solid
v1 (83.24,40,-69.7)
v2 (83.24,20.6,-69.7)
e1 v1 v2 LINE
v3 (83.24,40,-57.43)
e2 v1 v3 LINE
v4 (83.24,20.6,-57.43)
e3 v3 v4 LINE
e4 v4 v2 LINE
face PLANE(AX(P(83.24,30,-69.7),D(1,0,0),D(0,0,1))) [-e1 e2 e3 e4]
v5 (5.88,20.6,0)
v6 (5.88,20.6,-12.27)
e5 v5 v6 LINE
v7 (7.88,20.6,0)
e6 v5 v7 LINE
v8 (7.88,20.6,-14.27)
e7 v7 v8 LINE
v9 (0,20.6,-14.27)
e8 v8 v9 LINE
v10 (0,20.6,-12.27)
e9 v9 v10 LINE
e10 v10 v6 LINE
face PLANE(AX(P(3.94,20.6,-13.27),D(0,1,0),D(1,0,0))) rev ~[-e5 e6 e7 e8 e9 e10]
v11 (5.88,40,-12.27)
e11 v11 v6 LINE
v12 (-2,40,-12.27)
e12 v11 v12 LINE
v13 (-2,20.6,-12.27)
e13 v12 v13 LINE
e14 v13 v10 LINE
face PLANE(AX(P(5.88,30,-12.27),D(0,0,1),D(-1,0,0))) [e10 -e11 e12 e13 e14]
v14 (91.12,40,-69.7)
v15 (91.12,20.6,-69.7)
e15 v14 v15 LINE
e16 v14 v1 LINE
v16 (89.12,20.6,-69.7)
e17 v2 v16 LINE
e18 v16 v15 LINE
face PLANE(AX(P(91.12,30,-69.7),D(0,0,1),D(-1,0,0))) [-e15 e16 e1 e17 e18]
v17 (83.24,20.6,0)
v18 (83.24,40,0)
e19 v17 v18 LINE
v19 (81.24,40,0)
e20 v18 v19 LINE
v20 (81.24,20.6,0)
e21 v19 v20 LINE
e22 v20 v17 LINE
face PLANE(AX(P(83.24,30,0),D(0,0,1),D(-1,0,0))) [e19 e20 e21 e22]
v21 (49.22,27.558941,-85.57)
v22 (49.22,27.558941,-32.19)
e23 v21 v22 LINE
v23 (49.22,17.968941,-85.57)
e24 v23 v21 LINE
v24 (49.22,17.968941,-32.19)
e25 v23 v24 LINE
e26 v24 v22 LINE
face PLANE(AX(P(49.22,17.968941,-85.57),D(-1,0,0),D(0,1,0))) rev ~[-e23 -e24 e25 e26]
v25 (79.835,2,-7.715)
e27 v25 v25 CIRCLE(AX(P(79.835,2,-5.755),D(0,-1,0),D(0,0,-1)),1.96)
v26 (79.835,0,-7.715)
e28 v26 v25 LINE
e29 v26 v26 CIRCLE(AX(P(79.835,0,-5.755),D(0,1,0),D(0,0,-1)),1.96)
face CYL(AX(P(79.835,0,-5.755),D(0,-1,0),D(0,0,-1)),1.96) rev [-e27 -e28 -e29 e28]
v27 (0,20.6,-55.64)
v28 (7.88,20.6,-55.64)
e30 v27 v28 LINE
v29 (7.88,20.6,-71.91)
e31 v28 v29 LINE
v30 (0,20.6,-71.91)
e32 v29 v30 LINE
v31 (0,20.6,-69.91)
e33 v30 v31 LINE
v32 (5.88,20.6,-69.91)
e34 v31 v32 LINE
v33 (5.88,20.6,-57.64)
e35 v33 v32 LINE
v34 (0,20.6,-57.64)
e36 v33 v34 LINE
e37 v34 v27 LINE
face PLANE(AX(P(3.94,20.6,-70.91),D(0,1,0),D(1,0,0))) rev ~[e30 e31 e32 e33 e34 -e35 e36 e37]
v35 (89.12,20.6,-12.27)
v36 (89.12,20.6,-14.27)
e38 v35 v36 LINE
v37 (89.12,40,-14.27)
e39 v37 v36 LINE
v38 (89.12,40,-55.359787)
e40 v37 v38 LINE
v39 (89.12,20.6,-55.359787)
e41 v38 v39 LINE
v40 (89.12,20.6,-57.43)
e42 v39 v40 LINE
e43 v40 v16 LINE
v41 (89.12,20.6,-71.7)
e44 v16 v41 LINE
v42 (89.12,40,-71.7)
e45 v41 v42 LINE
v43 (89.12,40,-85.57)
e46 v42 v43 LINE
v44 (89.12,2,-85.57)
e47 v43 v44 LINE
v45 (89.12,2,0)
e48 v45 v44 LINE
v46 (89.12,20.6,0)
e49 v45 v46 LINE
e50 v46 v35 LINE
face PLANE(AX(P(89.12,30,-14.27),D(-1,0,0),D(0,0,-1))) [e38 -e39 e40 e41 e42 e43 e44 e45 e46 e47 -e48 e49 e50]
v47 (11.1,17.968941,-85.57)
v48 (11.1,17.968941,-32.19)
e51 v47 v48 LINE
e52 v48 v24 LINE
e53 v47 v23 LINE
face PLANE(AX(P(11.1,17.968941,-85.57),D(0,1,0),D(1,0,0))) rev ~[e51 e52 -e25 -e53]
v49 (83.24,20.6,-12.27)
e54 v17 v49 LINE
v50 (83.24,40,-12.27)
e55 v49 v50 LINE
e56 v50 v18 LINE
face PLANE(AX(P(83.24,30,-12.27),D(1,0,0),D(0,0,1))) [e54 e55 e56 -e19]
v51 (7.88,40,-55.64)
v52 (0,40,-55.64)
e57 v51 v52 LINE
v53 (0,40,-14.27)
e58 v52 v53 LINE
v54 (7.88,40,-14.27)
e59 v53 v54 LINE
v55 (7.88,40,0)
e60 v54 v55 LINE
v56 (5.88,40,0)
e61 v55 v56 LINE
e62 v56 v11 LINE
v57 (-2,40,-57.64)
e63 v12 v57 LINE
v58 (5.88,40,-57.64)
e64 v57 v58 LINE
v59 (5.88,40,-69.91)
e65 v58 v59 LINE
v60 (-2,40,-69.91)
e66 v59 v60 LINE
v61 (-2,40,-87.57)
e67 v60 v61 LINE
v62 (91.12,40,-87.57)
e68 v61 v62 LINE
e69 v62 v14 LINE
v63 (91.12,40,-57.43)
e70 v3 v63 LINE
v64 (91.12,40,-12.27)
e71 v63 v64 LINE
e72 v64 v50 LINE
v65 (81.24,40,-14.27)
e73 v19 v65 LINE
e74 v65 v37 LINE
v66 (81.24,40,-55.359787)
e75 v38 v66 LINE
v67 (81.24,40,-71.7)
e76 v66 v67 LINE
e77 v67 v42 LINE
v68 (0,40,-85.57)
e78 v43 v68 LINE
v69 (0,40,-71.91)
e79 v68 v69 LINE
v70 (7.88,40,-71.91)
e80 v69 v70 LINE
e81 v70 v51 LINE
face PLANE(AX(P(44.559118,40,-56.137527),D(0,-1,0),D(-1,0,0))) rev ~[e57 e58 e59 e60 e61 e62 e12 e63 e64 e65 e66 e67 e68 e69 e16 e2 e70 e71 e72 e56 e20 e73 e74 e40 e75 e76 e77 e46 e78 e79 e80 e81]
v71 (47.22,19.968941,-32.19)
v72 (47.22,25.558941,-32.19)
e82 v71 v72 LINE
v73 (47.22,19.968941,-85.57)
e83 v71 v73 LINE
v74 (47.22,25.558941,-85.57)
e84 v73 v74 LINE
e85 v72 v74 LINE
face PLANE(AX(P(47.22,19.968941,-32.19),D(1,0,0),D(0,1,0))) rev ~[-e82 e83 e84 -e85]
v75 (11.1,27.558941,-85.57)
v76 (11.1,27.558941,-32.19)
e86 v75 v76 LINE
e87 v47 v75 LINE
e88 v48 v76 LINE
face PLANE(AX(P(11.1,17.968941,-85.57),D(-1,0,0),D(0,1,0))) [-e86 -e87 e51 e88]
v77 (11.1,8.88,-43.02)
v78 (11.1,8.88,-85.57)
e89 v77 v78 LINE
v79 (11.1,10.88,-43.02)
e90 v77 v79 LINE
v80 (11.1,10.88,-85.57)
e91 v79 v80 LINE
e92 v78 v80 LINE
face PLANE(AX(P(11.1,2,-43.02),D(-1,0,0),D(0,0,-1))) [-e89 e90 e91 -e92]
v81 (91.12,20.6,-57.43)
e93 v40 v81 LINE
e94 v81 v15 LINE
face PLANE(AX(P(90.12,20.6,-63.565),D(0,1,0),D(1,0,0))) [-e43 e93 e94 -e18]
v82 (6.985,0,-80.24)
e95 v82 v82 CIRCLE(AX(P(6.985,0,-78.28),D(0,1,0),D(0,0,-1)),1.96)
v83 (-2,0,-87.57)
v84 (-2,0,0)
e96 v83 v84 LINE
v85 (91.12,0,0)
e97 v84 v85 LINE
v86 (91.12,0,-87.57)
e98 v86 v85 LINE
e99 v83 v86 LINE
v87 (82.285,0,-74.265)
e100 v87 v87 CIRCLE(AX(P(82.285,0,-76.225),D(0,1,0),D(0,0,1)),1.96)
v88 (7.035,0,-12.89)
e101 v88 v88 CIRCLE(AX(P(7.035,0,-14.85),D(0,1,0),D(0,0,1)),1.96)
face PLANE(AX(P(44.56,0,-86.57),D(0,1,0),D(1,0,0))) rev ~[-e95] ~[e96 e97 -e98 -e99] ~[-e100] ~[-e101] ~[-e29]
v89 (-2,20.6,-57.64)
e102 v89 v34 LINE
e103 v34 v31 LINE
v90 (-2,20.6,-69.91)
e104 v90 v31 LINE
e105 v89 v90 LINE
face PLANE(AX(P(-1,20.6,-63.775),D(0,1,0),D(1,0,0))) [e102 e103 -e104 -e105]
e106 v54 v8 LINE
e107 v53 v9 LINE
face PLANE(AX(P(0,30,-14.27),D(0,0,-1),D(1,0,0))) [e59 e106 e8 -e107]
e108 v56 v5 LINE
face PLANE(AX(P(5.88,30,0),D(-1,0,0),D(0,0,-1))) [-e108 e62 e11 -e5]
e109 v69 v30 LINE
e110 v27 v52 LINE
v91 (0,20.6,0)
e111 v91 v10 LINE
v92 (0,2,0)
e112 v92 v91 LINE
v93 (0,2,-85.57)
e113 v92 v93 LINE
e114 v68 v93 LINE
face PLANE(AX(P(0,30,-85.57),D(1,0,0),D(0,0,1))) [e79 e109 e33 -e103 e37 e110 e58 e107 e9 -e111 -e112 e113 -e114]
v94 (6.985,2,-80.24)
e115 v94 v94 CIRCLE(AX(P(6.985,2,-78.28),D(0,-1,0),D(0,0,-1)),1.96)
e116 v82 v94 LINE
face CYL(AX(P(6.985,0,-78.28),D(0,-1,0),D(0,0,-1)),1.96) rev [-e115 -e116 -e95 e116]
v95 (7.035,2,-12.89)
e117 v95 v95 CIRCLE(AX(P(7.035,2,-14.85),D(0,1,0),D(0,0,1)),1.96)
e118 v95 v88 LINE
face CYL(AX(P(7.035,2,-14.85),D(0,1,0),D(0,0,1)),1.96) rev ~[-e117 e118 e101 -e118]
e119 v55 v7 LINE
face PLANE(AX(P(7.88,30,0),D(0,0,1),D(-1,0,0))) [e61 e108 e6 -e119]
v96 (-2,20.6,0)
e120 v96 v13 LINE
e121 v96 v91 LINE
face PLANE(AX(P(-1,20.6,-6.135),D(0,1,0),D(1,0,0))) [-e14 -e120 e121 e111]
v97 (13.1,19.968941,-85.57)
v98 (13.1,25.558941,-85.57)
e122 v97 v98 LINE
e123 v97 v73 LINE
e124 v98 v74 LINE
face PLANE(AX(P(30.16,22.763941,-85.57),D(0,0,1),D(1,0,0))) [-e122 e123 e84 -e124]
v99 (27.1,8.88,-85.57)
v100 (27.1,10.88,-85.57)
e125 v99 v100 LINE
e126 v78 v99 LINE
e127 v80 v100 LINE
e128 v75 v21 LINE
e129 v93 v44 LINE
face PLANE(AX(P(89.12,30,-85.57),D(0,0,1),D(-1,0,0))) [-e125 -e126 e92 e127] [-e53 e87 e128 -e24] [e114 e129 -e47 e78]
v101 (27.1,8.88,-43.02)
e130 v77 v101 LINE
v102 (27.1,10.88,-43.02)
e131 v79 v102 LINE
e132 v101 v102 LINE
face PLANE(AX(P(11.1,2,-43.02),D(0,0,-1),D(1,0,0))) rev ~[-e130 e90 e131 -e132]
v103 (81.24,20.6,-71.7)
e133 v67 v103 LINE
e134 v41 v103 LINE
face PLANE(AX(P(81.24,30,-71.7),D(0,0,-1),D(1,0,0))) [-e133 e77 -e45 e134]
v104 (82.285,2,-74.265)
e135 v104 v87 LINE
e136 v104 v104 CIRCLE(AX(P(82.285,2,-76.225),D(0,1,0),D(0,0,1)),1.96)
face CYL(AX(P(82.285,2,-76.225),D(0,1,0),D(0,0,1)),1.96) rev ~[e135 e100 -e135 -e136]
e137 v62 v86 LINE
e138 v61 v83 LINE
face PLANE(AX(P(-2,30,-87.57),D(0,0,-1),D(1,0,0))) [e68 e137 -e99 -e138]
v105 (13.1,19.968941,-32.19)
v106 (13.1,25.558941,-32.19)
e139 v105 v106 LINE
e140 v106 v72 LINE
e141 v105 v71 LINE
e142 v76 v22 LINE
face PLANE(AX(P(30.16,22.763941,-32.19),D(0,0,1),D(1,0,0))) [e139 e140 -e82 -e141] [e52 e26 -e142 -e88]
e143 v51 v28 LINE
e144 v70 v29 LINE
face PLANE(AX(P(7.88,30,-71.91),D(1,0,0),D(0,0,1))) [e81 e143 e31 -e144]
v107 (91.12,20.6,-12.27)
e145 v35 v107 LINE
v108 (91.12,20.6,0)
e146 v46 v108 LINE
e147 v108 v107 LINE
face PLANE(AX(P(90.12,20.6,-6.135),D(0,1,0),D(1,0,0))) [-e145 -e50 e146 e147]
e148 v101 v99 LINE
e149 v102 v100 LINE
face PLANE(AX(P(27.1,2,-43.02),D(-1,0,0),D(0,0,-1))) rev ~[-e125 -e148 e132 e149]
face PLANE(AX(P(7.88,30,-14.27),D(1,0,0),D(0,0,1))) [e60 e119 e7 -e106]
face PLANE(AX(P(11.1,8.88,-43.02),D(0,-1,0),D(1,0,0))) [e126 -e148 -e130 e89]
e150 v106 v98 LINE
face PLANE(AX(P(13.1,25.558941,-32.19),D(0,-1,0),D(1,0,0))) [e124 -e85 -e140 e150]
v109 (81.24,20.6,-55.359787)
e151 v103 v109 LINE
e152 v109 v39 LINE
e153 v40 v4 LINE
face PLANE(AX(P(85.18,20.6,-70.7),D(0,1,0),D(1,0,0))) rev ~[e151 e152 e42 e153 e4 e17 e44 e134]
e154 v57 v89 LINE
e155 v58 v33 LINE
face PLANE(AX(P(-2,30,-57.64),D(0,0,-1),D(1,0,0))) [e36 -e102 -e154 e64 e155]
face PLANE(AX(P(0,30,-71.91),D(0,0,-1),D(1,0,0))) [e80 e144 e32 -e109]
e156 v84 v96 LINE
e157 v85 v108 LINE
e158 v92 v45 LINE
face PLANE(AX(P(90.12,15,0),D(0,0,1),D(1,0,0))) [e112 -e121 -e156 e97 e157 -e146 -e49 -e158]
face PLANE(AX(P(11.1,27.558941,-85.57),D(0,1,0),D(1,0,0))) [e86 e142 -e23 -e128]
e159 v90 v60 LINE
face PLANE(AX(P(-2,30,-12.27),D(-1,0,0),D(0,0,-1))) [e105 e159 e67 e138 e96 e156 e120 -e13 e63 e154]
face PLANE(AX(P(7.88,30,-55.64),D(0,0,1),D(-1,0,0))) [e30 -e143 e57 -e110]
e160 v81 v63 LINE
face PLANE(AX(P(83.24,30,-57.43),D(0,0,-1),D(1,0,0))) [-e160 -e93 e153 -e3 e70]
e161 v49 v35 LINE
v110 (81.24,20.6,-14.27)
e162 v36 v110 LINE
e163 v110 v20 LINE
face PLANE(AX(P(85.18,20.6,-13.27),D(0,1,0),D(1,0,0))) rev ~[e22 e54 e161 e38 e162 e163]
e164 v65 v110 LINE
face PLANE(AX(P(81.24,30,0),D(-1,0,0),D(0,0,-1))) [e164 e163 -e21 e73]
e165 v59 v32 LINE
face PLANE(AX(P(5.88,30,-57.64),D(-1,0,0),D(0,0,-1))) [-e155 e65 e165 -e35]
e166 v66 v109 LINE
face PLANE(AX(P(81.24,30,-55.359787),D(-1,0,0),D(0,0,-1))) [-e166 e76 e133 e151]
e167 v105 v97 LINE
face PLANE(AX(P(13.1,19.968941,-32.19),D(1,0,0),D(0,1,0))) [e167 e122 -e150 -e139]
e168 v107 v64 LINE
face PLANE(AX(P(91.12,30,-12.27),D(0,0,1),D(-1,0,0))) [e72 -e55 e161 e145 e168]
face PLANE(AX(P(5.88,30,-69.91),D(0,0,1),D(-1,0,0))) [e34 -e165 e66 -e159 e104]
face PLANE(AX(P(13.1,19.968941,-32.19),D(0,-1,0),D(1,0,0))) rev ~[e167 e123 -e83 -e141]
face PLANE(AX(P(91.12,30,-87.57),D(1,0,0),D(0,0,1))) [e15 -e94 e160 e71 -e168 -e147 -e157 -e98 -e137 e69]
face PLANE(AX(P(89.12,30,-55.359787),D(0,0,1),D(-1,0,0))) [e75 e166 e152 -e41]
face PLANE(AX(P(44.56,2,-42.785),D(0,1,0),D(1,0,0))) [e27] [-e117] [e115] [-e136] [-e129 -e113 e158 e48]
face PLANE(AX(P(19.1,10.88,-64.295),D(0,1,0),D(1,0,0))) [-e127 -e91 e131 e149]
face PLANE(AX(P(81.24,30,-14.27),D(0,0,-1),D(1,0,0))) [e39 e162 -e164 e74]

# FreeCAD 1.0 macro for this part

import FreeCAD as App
import Part
import Sketcher

V = App.Vector
Q = App.Units.Quantity


def add_polygon(sketch, points):
    """Adds a closed chain of lines whose ends are joined by coincident constraints."""
    first, n = sketch.GeometryCount, len(points)
    for a, b in zip(points, points[1:] + points[:1]):
        sketch.addGeometry(Part.LineSegment(App.Vector(*a, 0), App.Vector(*b, 0)), False)
    for i in range(n):
        sketch.addConstraint(Sketcher.Constraint("Coincident", first + i, 2, first + (i + 1) % n, 1))

doc = App.newDocument("Part")
body = doc.addObject("PartDesign::Body", "Body")

# Sketch on XZ plane
sketch1 = doc.addObject("Sketcher::SketchObject", "Sketch")
body.addObject(sketch1)
sketch1.AttachmentSupport = (doc.XZ_Plane, [""])
sketch1.MapMode = "FlatFace"
add_polygon(sketch1, [(0, -85.57), (0, 0), (89.12, 0), (89.12, -85.57)])  # lines 0-3
sketch1.addConstraint(Sketcher.Constraint("Vertical", 0))
sketch1.addConstraint(Sketcher.Constraint("Horizontal", 1))
sketch1.addConstraint(Sketcher.Constraint("Vertical", 2))
sketch1.addConstraint(Sketcher.Constraint("Horizontal", 3))
sketch1.addConstraint(Sketcher.Constraint("Coincident", 0, 2, -1, 1))
sketch1.addConstraint(Sketcher.Constraint("DistanceX", 1, 1, 1, 2, Q("89.12 mm")))
sketch1.addConstraint(Sketcher.Constraint("DistanceY", 0, 1, 0, 2, Q("85.57 mm")))
pad1 = doc.addObject("PartDesign::Pad", "Pad")
body.addObject(pad1)
pad1.Profile = sketch1
pad1.Length = 2
pad1.Reversed = True

# Sketch on XY plane
sketch2 = doc.addObject("Sketcher::SketchObject", "Sketch001")
body.addObject(sketch2)
sketch2.AttachmentSupport = (doc.XY_Plane, [""])
sketch2.MapMode = "FlatFace"
add_polygon(sketch2, [(-2, 30), (-2, 0), (0, 0), (0, 30)])  # lines 0-3
sketch2.addConstraint(Sketcher.Constraint("Vertical", 0))
sketch2.addConstraint(Sketcher.Constraint("Horizontal", 1))
sketch2.addConstraint(Sketcher.Constraint("Vertical", 2))
sketch2.addConstraint(Sketcher.Constraint("Horizontal", 3))
sketch2.addConstraint(Sketcher.Constraint("Coincident", 1, 2, -1, 1))
sketch2.addConstraint(Sketcher.Constraint("DistanceX", 1, 1, 1, 2, Q("2 mm")))
sketch2.addConstraint(Sketcher.Constraint("DistanceY", 0, 2, 0, 1, Q("30 mm")))
pad2 = doc.addObject("PartDesign::Pad", "Pad001")
body.addObject(pad2)
pad2.Profile = sketch2
pad2.Length = 85.57
pad2.Reversed = True

# Sketch on XY plane
sketch3 = doc.addObject("Sketcher::SketchObject", "Sketch002")
body.addObject(sketch3)
sketch3.AttachmentSupport = (doc.XY_Plane, [""])
sketch3.MapMode = "FlatFace"
add_polygon(sketch3, [(89.12, 30), (89.12, 0), (91.12, 0), (91.12, 30)])  # lines 0-3
sketch3.addConstraint(Sketcher.Constraint("Vertical", 0))
sketch3.addConstraint(Sketcher.Constraint("Horizontal", 1))
sketch3.addConstraint(Sketcher.Constraint("Vertical", 2))
sketch3.addConstraint(Sketcher.Constraint("Horizontal", 3))
sketch3.addConstraint(Sketcher.Constraint("PointOnObject", 0, 2, -1))
sketch3.addConstraint(Sketcher.Constraint("DistanceX", 1, 1, 1, 2, Q("2 mm")))
sketch3.addConstraint(Sketcher.Constraint("DistanceY", 0, 2, 0, 1, Q("30 mm")))
sketch3.addConstraint(Sketcher.Constraint("DistanceX", -1, 1, 0, 2, Q("89.12 mm")))
pad3 = doc.addObject("PartDesign::Pad", "Pad002")
body.addObject(pad3)
pad3.Profile = sketch3
pad3.Length = 85.57
pad3.Reversed = True

# Sketch on XZ plane
sketch4 = doc.addObject("Sketcher::SketchObject", "Sketch003")
body.addObject(sketch4)
sketch4.AttachmentSupport = (doc.XZ_Plane, [""])
sketch4.MapMode = "FlatFace"
add_polygon(sketch4, [(-2, -87.57), (-2, -85.57), (91.12, -85.57), (91.12, -87.57)])  # lines 0-3
sketch4.addConstraint(Sketcher.Constraint("Vertical", 0))
sketch4.addConstraint(Sketcher.Constraint("Horizontal", 1))
sketch4.addConstraint(Sketcher.Constraint("Vertical", 2))
sketch4.addConstraint(Sketcher.Constraint("Horizontal", 3))
sketch4.addConstraint(Sketcher.Constraint("DistanceY", 0, 1, 0, 2, Q("2 mm")))
sketch4.addConstraint(Sketcher.Constraint("DistanceX", 0, 2, -1, 1, Q("2 mm")))
sketch4.addConstraint(Sketcher.Constraint("DistanceX", 1, 1, 1, 2, Q("93.12 mm")))
sketch4.addConstraint(Sketcher.Constraint("DistanceY", 0, 2, -1, 1, Q("85.57 mm")))
pad4 = doc.addObject("PartDesign::Pad", "Pad003")
body.addObject(pad4)
pad4.Profile = sketch4
pad4.Length = 30
pad4.Reversed = True

# Sketch on XZ plane
sketch5 = doc.addObject("Sketcher::SketchObject", "Sketch004")
body.addObject(sketch5)
sketch5.AttachmentSupport = (doc.XZ_Plane, [""])
sketch5.MapMode = "FlatFace"
sketch5.addGeometry(Part.Circle(V(79.835, -5.755, 0), V(0, 0, 1), 1.96), False)
sketch5.addConstraint(Sketcher.Constraint("Diameter", 0, Q("3.92 mm")))
sketch5.addConstraint(Sketcher.Constraint("DistanceX", -1, 1, 0, 3, Q("79.835 mm")))
sketch5.addConstraint(Sketcher.Constraint("DistanceY", 0, 3, -1, 1, Q("5.755 mm")))
pocket1 = doc.addObject("PartDesign::Pocket", "Pocket")
body.addObject(pocket1)
pocket1.Profile = sketch5
pocket1.Length = 30

# Sketch on XZ plane
sketch6 = doc.addObject("Sketcher::SketchObject", "Sketch005")
body.addObject(sketch6)
sketch6.AttachmentSupport = (doc.XZ_Plane, [""])
sketch6.MapMode = "FlatFace"
sketch6.AttachmentOffset = App.Placement(V(0, 0, -2), App.Rotation())
sketch6.addGeometry(Part.Circle(V(82.285, -76.225, 0), V(0, 0, 1), 1.96), False)
sketch6.addConstraint(Sketcher.Constraint("Diameter", 0, Q("3.92 mm")))
sketch6.addConstraint(Sketcher.Constraint("DistanceX", -1, 1, 0, 3, Q("82.285 mm")))
sketch6.addConstraint(Sketcher.Constraint("DistanceY", 0, 3, -1, 1, Q("76.225 mm")))
pocket2 = doc.addObject("PartDesign::Pocket", "Pocket001")
body.addObject(pocket2)
pocket2.Profile = sketch6
pocket2.Length = 30
pocket2.Reversed = True

# Sketch on XZ plane
sketch7 = doc.addObject("Sketcher::SketchObject", "Sketch006")
body.addObject(sketch7)
sketch7.AttachmentSupport = (doc.XZ_Plane, [""])
sketch7.MapMode = "FlatFace"
sketch7.addGeometry(Part.Circle(V(6.985, -78.28, 0), V(0, 0, 1), 1.96), False)
sketch7.addConstraint(Sketcher.Constraint("Diameter", 0, Q("3.92 mm")))
sketch7.addConstraint(Sketcher.Constraint("DistanceY", 0, 3, -1, 1, Q("78.28 mm")))
sketch7.addConstraint(Sketcher.Constraint("DistanceX", -1, 1, 0, 3, Q("6.985 mm")))
pocket3 = doc.addObject("PartDesign::Pocket", "Pocket002")
body.addObject(pocket3)
pocket3.Profile = sketch7
pocket3.Length = 30

# Sketch on XZ plane
sketch8 = doc.addObject("Sketcher::SketchObject", "Sketch007")
body.addObject(sketch8)
sketch8.AttachmentSupport = (doc.XZ_Plane, [""])
sketch8.MapMode = "FlatFace"
sketch8.AttachmentOffset = App.Placement(V(0, 0, -2), App.Rotation())
sketch8.addGeometry(Part.Circle(V(7.035, -14.85, 0), V(0, 0, 1), 1.96), False)
sketch8.addConstraint(Sketcher.Constraint("Diameter", 0, Q("3.92 mm")))
sketch8.addConstraint(Sketcher.Constraint("DistanceY", 0, 3, -1, 1, Q("14.85 mm")))
sketch8.addConstraint(Sketcher.Constraint("DistanceX", -1, 1, 0, 3, Q("7.035 mm")))
pocket4 = doc.addObject("PartDesign::Pocket", "Pocket003")
body.addObject(pocket4)
pocket4.Profile = sketch8
pocket4.Length = 30
pocket4.Reversed = True

# Sketch on XZ plane
sketch9 = doc.addObject("Sketcher::SketchObject", "Sketch008")
body.addObject(sketch9)
sketch9.AttachmentSupport = (doc.XZ_Plane, [""])
sketch9.MapMode = "FlatFace"
sketch9.AttachmentOffset = App.Placement(V(0, 0, -30), App.Rotation())
add_polygon(sketch9, [(89.12, -12.27), (89.12, -14.27), (81.24, -14.27), (81.24, 0), (83.24, 0), (83.24, -12.27)])  # lines 0-5
sketch9.addConstraint(Sketcher.Constraint("Vertical", 0))
sketch9.addConstraint(Sketcher.Constraint("Horizontal", 1))
sketch9.addConstraint(Sketcher.Constraint("Vertical", 2))
sketch9.addConstraint(Sketcher.Constraint("Horizontal", 3))
sketch9.addConstraint(Sketcher.Constraint("Vertical", 4))
sketch9.addConstraint(Sketcher.Constraint("Horizontal", 5))
sketch9.addConstraint(Sketcher.Constraint("PointOnObject", 2, 2, -1))
sketch9.addConstraint(Sketcher.Constraint("Equal", 3, 0))
sketch9.addConstraint(Sketcher.Constraint("DistanceX", 3, 1, 3, 2, Q("2 mm")))
sketch9.addConstraint(Sketcher.Constraint("DistanceX", 1, 2, 1, 1, Q("7.88 mm")))
sketch9.addConstraint(Sketcher.Constraint("DistanceY", 2, 1, 2, 2, Q("14.27 mm")))
sketch9.addConstraint(Sketcher.Constraint("DistanceX", -1, 1, 0, 2, Q("89.12 mm")))
pad5 = doc.addObject("PartDesign::Pad", "Pad004")
body.addObject(pad5)
pad5.Profile = sketch9
pad5.Length = 9.4

# Sketch on XZ plane
sketch10 = doc.addObject("Sketcher::SketchObject", "Sketch009")
body.addObject(sketch10)
sketch10.AttachmentSupport = (doc.XZ_Plane, [""])
sketch10.MapMode = "FlatFace"
sketch10.AttachmentOffset = App.Placement(V(0, 0, -30), App.Rotation())
add_polygon(sketch10, [(89.12, -12.27), (89.12, 0), (91.12, 0), (91.12, -12.27)])  # lines 0-3
sketch10.addConstraint(Sketcher.Constraint("Vertical", 0))
sketch10.addConstraint(Sketcher.Constraint("Horizontal", 1))
sketch10.addConstraint(Sketcher.Constraint("Vertical", 2))
sketch10.addConstraint(Sketcher.Constraint("Horizontal", 3))
sketch10.addConstraint(Sketcher.Constraint("PointOnObject", 0, 2, -1))
sketch10.addConstraint(Sketcher.Constraint("DistanceX", 1, 1, 1, 2, Q("2 mm")))
sketch10.addConstraint(Sketcher.Constraint("DistanceY", 0, 1, 0, 2, Q("12.27 mm")))
sketch10.addConstraint(Sketcher.Constraint("DistanceX", -1, 1, 0, 2, Q("89.12 mm")))
pocket5 = doc.addObject("PartDesign::Pocket", "Pocket004")
body.addObject(pocket5)
pocket5.Profile = sketch10
pocket5.Length = 9.4
pocket5.Reversed = True

# Sketch on XZ plane
sketch11 = doc.addObject("Sketcher::SketchObject", "Sketch010")
body.addObject(sketch11)
sketch11.AttachmentSupport = (doc.XZ_Plane, [""])
sketch11.MapMode = "FlatFace"
sketch11.AttachmentOffset = App.Placement(V(0, 0, -30), App.Rotation())
add_polygon(sketch11, [(89.12, -69.7), (89.12, -71.7), (81.24, -71.7), (81.24, -55.359787), (89.12, -55.359787), (89.12, -57.43), (83.24, -57.43), (83.24, -69.7)])  # lines 0-7
sketch11.addConstraint(Sketcher.Constraint("Vertical", 0))
sketch11.addConstraint(Sketcher.Constraint("Horizontal", 1))
sketch11.addConstraint(Sketcher.Constraint("Vertical", 2))
sketch11.addConstraint(Sketcher.Constraint("Horizontal", 3))
sketch11.addConstraint(Sketcher.Constraint("Vertical", 4))
sketch11.addConstraint(Sketcher.Constraint("Horizontal", 5))
sketch11.addConstraint(Sketcher.Constraint("Vertical", 6))
sketch11.addConstraint(Sketcher.Constraint("Horizontal", 7))
sketch11.addConstraint(Sketcher.Constraint("Vertical", 0, 2, 3, 2))
sketch11.addConstraint(Sketcher.Constraint("DistanceY", 0, 2, 0, 1, Q("2 mm")))
sketch11.addConstraint(Sketcher.Constraint("DistanceX", 2, 2, 5, 2, Q("2 mm")))
sketch11.addConstraint(Sketcher.Constraint("DistanceX", 1, 2, 1, 1, Q("7.88 mm")))
sketch11.addConstraint(Sketcher.Constraint("DistanceY", 6, 2, 6, 1, Q("12.27 mm")))
sketch11.addConstraint(Sketcher.Constraint("DistanceY", 0, 2, -1, 1, Q("71.7 mm")))
sketch11.addConstraint(Sketcher.Constraint("DistanceX", -1, 1, 0, 2, Q("89.12 mm")))
sketch11.addConstraint(Sketcher.Constraint("DistanceY", 2, 1, 2, 2, Q("16.340213 mm")))
pad6 = doc.addObject("PartDesign::Pad", "Pad005")
body.addObject(pad6)
pad6.Profile = sketch11
pad6.Length = 9.4

# Sketch on XZ plane
sketch12 = doc.addObject("Sketcher::SketchObject", "Sketch011")
body.addObject(sketch12)
sketch12.AttachmentSupport = (doc.XZ_Plane, [""])
sketch12.MapMode = "FlatFace"
sketch12.AttachmentOffset = App.Placement(V(0, 0, -30), App.Rotation())
add_polygon(sketch12, [(89.12, -69.7), (89.12, -57.43), (91.12, -57.43), (91.12, -69.7)])  # lines 0-3
sketch12.addConstraint(Sketcher.Constraint("Vertical", 0))
sketch12.addConstraint(Sketcher.Constraint("Horizontal", 1))
sketch12.addConstraint(Sketcher.Constraint("Vertical", 2))
sketch12.addConstraint(Sketcher.Constraint("Horizontal", 3))
sketch12.addConstraint(Sketcher.Constraint("DistanceX", 1, 1, 1, 2, Q("2 mm")))
sketch12.addConstraint(Sketcher.Constraint("DistanceY", 0, 1, 0, 2, Q("12.27 mm")))
sketch12.addConstraint(Sketcher.Constraint("DistanceY", 2, 2, -1, 1, Q("69.7 mm")))
sketch12.addConstraint(Sketcher.Constraint("DistanceX", -1, 1, 0, 2, Q("89.12 mm")))
pocket6 = doc.addObject("PartDesign::Pocket", "Pocket005")
body.addObject(pocket6)
pocket6.Profile = sketch12
pocket6.Length = 9.4
pocket6.Reversed = True

# Sketch on XZ plane
sketch13 = doc.addObject("Sketcher::SketchObject", "Sketch012")
body.addObject(sketch13)
sketch13.AttachmentSupport = (doc.XZ_Plane, [""])
sketch13.MapMode = "FlatFace"
sketch13.AttachmentOffset = App.Placement(V(0, 0, -30), App.Rotation())
add_polygon(sketch13, [(0, -71.91), (0, -69.91), (5.88, -69.91), (5.88, -57.64), (0, -57.64), (0, -55.64), (7.88, -55.64), (7.88, -71.91)])  # lines 0-7
sketch13.addConstraint(Sketcher.Constraint("Vertical", 0))
sketch13.addConstraint(Sketcher.Constraint("Horizontal", 1))
sketch13.addConstraint(Sketcher.Constraint("Vertical", 2))
sketch13.addConstraint(Sketcher.Constraint("Horizontal", 3))
sketch13.addConstraint(Sketcher.Constraint("Vertical", 4))
sketch13.addConstraint(Sketcher.Constraint("Horizontal", 5))
sketch13.addConstraint(Sketcher.Constraint("Vertical", 6))
sketch13.addConstraint(Sketcher.Constraint("Horizontal", 7))
sketch13.addConstraint(Sketcher.Constraint("PointOnObject", 0, 2, -2))
sketch13.addConstraint(Sketcher.Constraint("PointOnObject", 3, 2, -2))
sketch13.addConstraint(Sketcher.Constraint("Equal", 0, 4))
sketch13.addConstraint(Sketcher.Constraint("DistanceY", 0, 1, 0, 2, Q("2 mm")))
sketch13.addConstraint(Sketcher.Constraint("DistanceX", 2, 2, 5, 2, Q("2 mm")))
sketch13.addConstraint(Sketcher.Constraint("DistanceX", 1, 1, 1, 2, Q("5.88 mm")))
sketch13.addConstraint(Sketcher.Constraint("DistanceY", 2, 1, 2, 2, Q("12.27 mm")))
sketch13.addConstraint(Sketcher.Constraint("DistanceY", 0, 2, -1, 1, Q("69.91 mm")))
pad7 = doc.addObject("PartDesign::Pad", "Pad006")
body.addObject(pad7)
pad7.Profile = sketch13
pad7.Length = 9.4

# Sketch on XZ plane
sketch14 = doc.addObject("Sketcher::SketchObject", "Sketch013")
body.addObject(sketch14)
sketch14.AttachmentSupport = (doc.XZ_Plane, [""])
sketch14.MapMode = "FlatFace"
sketch14.AttachmentOffset = App.Placement(V(0, 0, -30), App.Rotation())
add_polygon(sketch14, [(-2, -69.91), (-2, -57.64), (0, -57.64), (0, -69.91)])  # lines 0-3
sketch14.addConstraint(Sketcher.Constraint("Vertical", 0))
sketch14.addConstraint(Sketcher.Constraint("Horizontal", 1))
sketch14.addConstraint(Sketcher.Constraint("Vertical", 2))
sketch14.addConstraint(Sketcher.Constraint("Horizontal", 3))
sketch14.addConstraint(Sketcher.Constraint("PointOnObject", 1, 2, -2))
sketch14.addConstraint(Sketcher.Constraint("DistanceX", 1, 1, 1, 2, Q("2 mm")))
sketch14.addConstraint(Sketcher.Constraint("DistanceY", 0, 1, 0, 2, Q("12.27 mm")))
sketch14.addConstraint(Sketcher.Constraint("DistanceY", 0, 2, -1, 1, Q("57.64 mm")))
pocket7 = doc.addObject("PartDesign::Pocket", "Pocket006")
body.addObject(pocket7)
pocket7.Profile = sketch14
pocket7.Length = 9.4
pocket7.Reversed = True

# Sketch on XZ plane
sketch15 = doc.addObject("Sketcher::SketchObject", "Sketch014")
body.addObject(sketch15)
sketch15.AttachmentSupport = (doc.XZ_Plane, [""])
sketch15.MapMode = "FlatFace"
sketch15.AttachmentOffset = App.Placement(V(0, 0, -30), App.Rotation())
add_polygon(sketch15, [(0, -14.27), (0, -12.27), (5.88, -12.27), (5.88, 0), (7.88, 0), (7.88, -14.27)])  # lines 0-5
sketch15.addConstraint(Sketcher.Constraint("Vertical", 0))
sketch15.addConstraint(Sketcher.Constraint("Horizontal", 1))
sketch15.addConstraint(Sketcher.Constraint("Vertical", 2))
sketch15.addConstraint(Sketcher.Constraint("Horizontal", 3))
sketch15.addConstraint(Sketcher.Constraint("Vertical", 4))
sketch15.addConstraint(Sketcher.Constraint("Horizontal", 5))
sketch15.addConstraint(Sketcher.Constraint("PointOnObject", 0, 2, -2))
sketch15.addConstraint(Sketcher.Constraint("PointOnObject", 2, 2, -1))
sketch15.addConstraint(Sketcher.Constraint("Equal", 3, 0))
sketch15.addConstraint(Sketcher.Constraint("DistanceX", 3, 1, 3, 2, Q("2 mm")))
sketch15.addConstraint(Sketcher.Constraint("DistanceX", 1, 1, 1, 2, Q("5.88 mm")))
sketch15.addConstraint(Sketcher.Constraint("DistanceY", 2, 1, 2, 2, Q("12.27 mm")))
pad8 = doc.addObject("PartDesign::Pad", "Pad007")
body.addObject(pad8)
pad8.Profile = sketch15
pad8.Length = 9.4

# Sketch on XZ plane
sketch16 = doc.addObject("Sketcher::SketchObject", "Sketch015")
body.addObject(sketch16)
sketch16.AttachmentSupport = (doc.XZ_Plane, [""])
sketch16.MapMode = "FlatFace"
sketch16.AttachmentOffset = App.Placement(V(0, 0, -30), App.Rotation())
add_polygon(sketch16, [(-2, -12.27), (-2, 0), (0, 0), (0, -12.27)])  # lines 0-3
sketch16.addConstraint(Sketcher.Constraint("Vertical", 0))
sketch16.addConstraint(Sketcher.Constraint("Horizontal", 1))
sketch16.addConstraint(Sketcher.Constraint("Vertical", 2))
sketch16.addConstraint(Sketcher.Constraint("Horizontal", 3))
sketch16.addConstraint(Sketcher.Constraint("Coincident", 1, 2, -1, 1))
sketch16.addConstraint(Sketcher.Constraint("DistanceX", 1, 1, 1, 2, Q("2 mm")))
sketch16.addConstraint(Sketcher.Constraint("DistanceY", 0, 1, 0, 2, Q("12.27 mm")))
pocket8 = doc.addObject("PartDesign::Pocket", "Pocket007")
body.addObject(pocket8)
pocket8.Profile = sketch16
pocket8.Length = 9.4
pocket8.Reversed = True

# Sketch on XZ plane
sketch17 = doc.addObject("Sketcher::SketchObject", "Sketch016")
body.addObject(sketch17)
sketch17.AttachmentSupport = (doc.XZ_Plane, [""])
sketch17.MapMode = "FlatFace"
sketch17.AttachmentOffset = App.Placement(V(0, 0, -30), App.Rotation())
add_polygon(sketch17, [(81.24, 0), (83.24, 0), (83.24, -12.27), (91.12, -12.27), (91.12, -57.43), (83.24, -57.43), (83.24, -69.7), (91.12, -69.7), (91.12, -87.57), (-2, -87.57), (-2, -69.91), (5.88, -69.91), (5.88, -57.64), (-2, -57.64), (-2, -12.27), (5.88, -12.27), (5.88, 0), (7.88, 0), (7.88, -14.27), (0, -14.27), (0, -55.64), (7.88, -55.64), (7.88, -71.91), (0, -71.91), (0, -85.57), (89.12, -85.57), (89.12, -71.7), (81.24, -71.7), (81.24, -55.359787), (89.12, -55.359787), (89.12, -14.27), (81.24, -14.27)])  # lines 0-31
sketch17.addConstraint(Sketcher.Constraint("Horizontal", 0))
sketch17.addConstraint(Sketcher.Constraint("Vertical", 1))
sketch17.addConstraint(Sketcher.Constraint("Horizontal", 2))
sketch17.addConstraint(Sketcher.Constraint("Vertical", 3))
sketch17.addConstraint(Sketcher.Constraint("Horizontal", 4))
sketch17.addConstraint(Sketcher.Constraint("Vertical", 5))
sketch17.addConstraint(Sketcher.Constraint("Horizontal", 6))
sketch17.addConstraint(Sketcher.Constraint("Vertical", 7))
sketch17.addConstraint(Sketcher.Constraint("Horizontal", 8))
sketch17.addConstraint(Sketcher.Constraint("Vertical", 9))
sketch17.addConstraint(Sketcher.Constraint("Horizontal", 10))
sketch17.addConstraint(Sketcher.Constraint("Vertical", 11))
sketch17.addConstraint(Sketcher.Constraint("Horizontal", 12))
sketch17.addConstraint(Sketcher.Constraint("Vertical", 13))
sketch17.addConstraint(Sketcher.Constraint("Horizontal", 14))
sketch17.addConstraint(Sketcher.Constraint("Vertical", 15))
sketch17.addConstraint(Sketcher.Constraint("Horizontal", 16))
sketch17.addConstraint(Sketcher.Constraint("Vertical", 17))
sketch17.addConstraint(Sketcher.Constraint("Horizontal", 18))
sketch17.addConstraint(Sketcher.Constraint("Vertical", 19))
sketch17.addConstraint(Sketcher.Constraint("Horizontal", 20))
sketch17.addConstraint(Sketcher.Constraint("Vertical", 21))
sketch17.addConstraint(Sketcher.Constraint("Horizontal", 22))
sketch17.addConstraint(Sketcher.Constraint("Vertical", 23))
sketch17.addConstraint(Sketcher.Constraint("Horizontal", 24))
sketch17.addConstraint(Sketcher.Constraint("Vertical", 25))
sketch17.addConstraint(Sketcher.Constraint("Horizontal", 26))
sketch17.addConstraint(Sketcher.Constraint("Vertical", 27))
sketch17.addConstraint(Sketcher.Constraint("Horizontal", 28))
sketch17.addConstraint(Sketcher.Constraint("Vertical", 29))
sketch17.addConstraint(Sketcher.Constraint("Horizontal", 30))
sketch17.addConstraint(Sketcher.Constraint("Vertical", 31))
sketch17.addConstraint(Sketcher.Constraint("PointOnObject", 0, 2, -1))
sketch17.addConstraint(Sketcher.Constraint("PointOnObject", 15, 2, -1))
sketch17.addConstraint(Sketcher.Constraint("PointOnObject", 18, 2, -2))
sketch17.addConstraint(Sketcher.Constraint("PointOnObject", 22, 2, -2))
sketch17.addConstraint(Sketcher.Constraint("Horizontal", 2, 2, 13, 2))
sketch17.addConstraint(Sketcher.Constraint("Horizontal", 18, 2, 29, 2))
sketch17.addConstraint(Sketcher.Constraint("Vertical", 1, 2, 4, 2))
sketch17.addConstraint(Sketcher.Constraint("Vertical", 3, 2, 6, 2))
sketch17.addConstraint(Sketcher.Constraint("Vertical", 9, 2, 12, 2))
sketch17.addConstraint(Sketcher.Constraint("Vertical", 11, 2, 14, 2))
sketch17.addConstraint(Sketcher.Constraint("Vertical", 17, 2, 20, 2))
sketch17.addConstraint(Sketcher.Constraint("Vertical", 25, 2, 28, 2))
sketch17.addConstraint(Sketcher.Constraint("Vertical", 27, 2, 30, 2))
sketch17.addConstraint(Sketcher.Constraint("Equal", 6, 10))
sketch17.addConstraint(Sketcher.Constraint("Equal", 0, 16))
sketch17.addConstraint(Sketcher.Constraint("Equal", 14, 18))
sketch17.addConstraint(Sketcher.Constraint("Equal", 22, 26))
sketch17.addConstraint(Sketcher.Constraint("Equal", 1, 5))
sketch17.addConstraint(Sketcher.Constraint("Equal", 5, 11))
sketch17.addConstraint(Sketcher.Constraint("DistanceX", 0, 1, 0, 2, Q("2 mm")))
sketch17.addConstraint(Sketcher.Constraint("DistanceY", 17, 2, 14, 2, Q("2 mm")))
sketch17.addConstraint(Sketcher.Constraint("DistanceY", 12, 2, 19, 2, Q("2 mm")))
sketch17.addConstraint(Sketcher.Constraint("DistanceY", 21, 2, 10, 2, Q("2 mm")))
sketch17.addConstraint(Sketcher.Constraint("DistanceY", 8, 2, 23, 2, Q("2 mm")))
sketch17.addConstraint(Sketcher.Constraint("DistanceY", 25, 2, 6, 2, Q("2 mm")))
sketch17.addConstraint(Sketcher.Constraint("DistanceX", 2, 1, 2, 2, Q("7.88 mm")))
sketch17.addConstraint(Sketcher.Constraint("DistanceX", 8, 2, 8, 1, Q("93.12 mm")))
sketch17.addConstraint(Sketcher.Constraint("DistanceY", 1, 2, 1, 1, Q("12.27 mm")))
sketch17.addConstraint(Sketcher.Constraint("DistanceY", 3, 2, 3, 1, Q("45.16 mm")))
sketch17.addConstraint(Sketcher.Constraint("DistanceY", 7, 2, 7, 1, Q("17.87 mm")))
sketch17.addConstraint(Sketcher.Constraint("DistanceY", 9, 1, 9, 2, Q("17.66 mm")))
sketch17.addConstraint(Sketcher.Constraint("DistanceY", 27, 1, 27, 2, Q("16.340213 mm")))
pad9 = doc.addObject("PartDesign::Pad", "Pad008")
body.addObject(pad9)
pad9.Profile = sketch17
pad9.Length = 10
pad9.Reversed = True

# Sketch on XZ plane
sketch18 = doc.addObject("Sketcher::SketchObject", "Sketch017")
body.addObject(sketch18)
sketch18.AttachmentSupport = (doc.XZ_Plane, [""])
sketch18.MapMode = "FlatFace"
sketch18.AttachmentOffset = App.Placement(V(0, 0, -2), App.Rotation())
add_polygon(sketch18, [(11.1, -85.57), (11.1, -43.02), (27.1, -43.02), (27.1, -85.57)])  # lines 0-3
sketch18.addConstraint(Sketcher.Constraint("Vertical", 0))
sketch18.addConstraint(Sketcher.Constraint("Horizontal", 1))
sketch18.addConstraint(Sketcher.Constraint("Vertical", 2))
sketch18.addConstraint(Sketcher.Constraint("Horizontal", 3))
sketch18.addConstraint(Sketcher.Constraint("DistanceX", 1, 1, 1, 2, Q("16 mm")))
sketch18.addConstraint(Sketcher.Constraint("DistanceY", 0, 1, 0, 2, Q("42.55 mm")))
sketch18.addConstraint(Sketcher.Constraint("DistanceX", -1, 1, 0, 2, Q("11.1 mm")))
sketch18.addConstraint(Sketcher.Constraint("DistanceY", 0, 2, -1, 1, Q("43.02 mm")))
pad10 = doc.addObject("PartDesign::Pad", "Pad009")
body.addObject(pad10)
pad10.Profile = sketch18
pad10.Length = 8.88
pad10.Reversed = True

# Sketch on XY plane
sketch19 = doc.addObject("Sketcher::SketchObject", "Sketch018")
body.addObject(sketch19)
sketch19.AttachmentSupport = (doc.XY_Plane, [""])
sketch19.MapMode = "FlatFace"
sketch19.AttachmentOffset = App.Placement(V(0, 0, -43.02), App.Rotation())
add_polygon(sketch19, [(11.1, 8.88), (11.1, 2), (27.1, 2), (27.1, 8.88)])  # lines 0-3
sketch19.addConstraint(Sketcher.Constraint("Vertical", 0))
sketch19.addConstraint(Sketcher.Constraint("Horizontal", 1))
sketch19.addConstraint(Sketcher.Constraint("Vertical", 2))
sketch19.addConstraint(Sketcher.Constraint("Horizontal", 3))
sketch19.addConstraint(Sketcher.Constraint("DistanceX", 1, 1, 1, 2, Q("16 mm")))
sketch19.addConstraint(Sketcher.Constraint("DistanceY", -1, 1, 0, 2, Q("2 mm")))
sketch19.addConstraint(Sketcher.Constraint("DistanceY", 0, 2, 0, 1, Q("6.88 mm")))
sketch19.addConstraint(Sketcher.Constraint("DistanceX", -1, 1, 0, 2, Q("11.1 mm")))
pocket9 = doc.addObject("PartDesign::Pocket", "Pocket008")
body.addObject(pocket9)
pocket9.Profile = sketch19
pocket9.Length = 42.55

# Sketch on XY plane
sketch20 = doc.addObject("Sketcher::SketchObject", "Sketch019")
body.addObject(sketch20)
sketch20.AttachmentSupport = (doc.XY_Plane, [""])
sketch20.MapMode = "FlatFace"
sketch20.AttachmentOffset = App.Placement(V(0, 0, -85.57), App.Rotation())
add_polygon(sketch20, [(11.1, 27.558941), (11.1, 17.968941), (49.22, 17.968941), (49.22, 27.558941)])  # lines 0-3
sketch20.addConstraint(Sketcher.Constraint("Vertical", 0))
sketch20.addConstraint(Sketcher.Constraint("Horizontal", 1))
sketch20.addConstraint(Sketcher.Constraint("Vertical", 2))
sketch20.addConstraint(Sketcher.Constraint("Horizontal", 3))
sketch20.addConstraint(Sketcher.Constraint("DistanceX", 1, 1, 1, 2, Q("38.12 mm")))
sketch20.addConstraint(Sketcher.Constraint("DistanceY", 0, 2, 0, 1, Q("9.59 mm")))
sketch20.addConstraint(Sketcher.Constraint("DistanceX", -1, 1, 0, 2, Q("11.1 mm")))
sketch20.addConstraint(Sketcher.Constraint("DistanceY", -1, 1, 0, 2, Q("17.968941 mm")))
pad11 = doc.addObject("PartDesign::Pad", "Pad010")
body.addObject(pad11)
pad11.Profile = sketch20
pad11.Length = 53.38

# Sketch on XY plane
sketch21 = doc.addObject("Sketcher::SketchObject", "Sketch020")
body.addObject(sketch21)
sketch21.AttachmentSupport = (doc.XY_Plane, [""])
sketch21.MapMode = "FlatFace"
sketch21.AttachmentOffset = App.Placement(V(0, 0, -32.19), App.Rotation())
add_polygon(sketch21, [(13.1, 25.558941), (13.1, 19.968941), (47.22, 19.968941), (47.22, 25.558941)])  # lines 0-3
sketch21.addConstraint(Sketcher.Constraint("Vertical", 0))
sketch21.addConstraint(Sketcher.Constraint("Horizontal", 1))
sketch21.addConstraint(Sketcher.Constraint("Vertical", 2))
sketch21.addConstraint(Sketcher.Constraint("Horizontal", 3))
sketch21.addConstraint(Sketcher.Constraint("DistanceX", 1, 1, 1, 2, Q("34.12 mm")))
sketch21.addConstraint(Sketcher.Constraint("DistanceY", 0, 2, 0, 1, Q("5.59 mm")))
sketch21.addConstraint(Sketcher.Constraint("DistanceX", -1, 1, 0, 2, Q("13.1 mm")))
sketch21.addConstraint(Sketcher.Constraint("DistanceY", -1, 1, 0, 2, Q("19.968941 mm")))
pocket10 = doc.addObject("PartDesign::Pocket", "Pocket009")
body.addObject(pocket10)
pocket10.Profile = sketch21
pocket10.Length = 53.38

doc.recompute()
